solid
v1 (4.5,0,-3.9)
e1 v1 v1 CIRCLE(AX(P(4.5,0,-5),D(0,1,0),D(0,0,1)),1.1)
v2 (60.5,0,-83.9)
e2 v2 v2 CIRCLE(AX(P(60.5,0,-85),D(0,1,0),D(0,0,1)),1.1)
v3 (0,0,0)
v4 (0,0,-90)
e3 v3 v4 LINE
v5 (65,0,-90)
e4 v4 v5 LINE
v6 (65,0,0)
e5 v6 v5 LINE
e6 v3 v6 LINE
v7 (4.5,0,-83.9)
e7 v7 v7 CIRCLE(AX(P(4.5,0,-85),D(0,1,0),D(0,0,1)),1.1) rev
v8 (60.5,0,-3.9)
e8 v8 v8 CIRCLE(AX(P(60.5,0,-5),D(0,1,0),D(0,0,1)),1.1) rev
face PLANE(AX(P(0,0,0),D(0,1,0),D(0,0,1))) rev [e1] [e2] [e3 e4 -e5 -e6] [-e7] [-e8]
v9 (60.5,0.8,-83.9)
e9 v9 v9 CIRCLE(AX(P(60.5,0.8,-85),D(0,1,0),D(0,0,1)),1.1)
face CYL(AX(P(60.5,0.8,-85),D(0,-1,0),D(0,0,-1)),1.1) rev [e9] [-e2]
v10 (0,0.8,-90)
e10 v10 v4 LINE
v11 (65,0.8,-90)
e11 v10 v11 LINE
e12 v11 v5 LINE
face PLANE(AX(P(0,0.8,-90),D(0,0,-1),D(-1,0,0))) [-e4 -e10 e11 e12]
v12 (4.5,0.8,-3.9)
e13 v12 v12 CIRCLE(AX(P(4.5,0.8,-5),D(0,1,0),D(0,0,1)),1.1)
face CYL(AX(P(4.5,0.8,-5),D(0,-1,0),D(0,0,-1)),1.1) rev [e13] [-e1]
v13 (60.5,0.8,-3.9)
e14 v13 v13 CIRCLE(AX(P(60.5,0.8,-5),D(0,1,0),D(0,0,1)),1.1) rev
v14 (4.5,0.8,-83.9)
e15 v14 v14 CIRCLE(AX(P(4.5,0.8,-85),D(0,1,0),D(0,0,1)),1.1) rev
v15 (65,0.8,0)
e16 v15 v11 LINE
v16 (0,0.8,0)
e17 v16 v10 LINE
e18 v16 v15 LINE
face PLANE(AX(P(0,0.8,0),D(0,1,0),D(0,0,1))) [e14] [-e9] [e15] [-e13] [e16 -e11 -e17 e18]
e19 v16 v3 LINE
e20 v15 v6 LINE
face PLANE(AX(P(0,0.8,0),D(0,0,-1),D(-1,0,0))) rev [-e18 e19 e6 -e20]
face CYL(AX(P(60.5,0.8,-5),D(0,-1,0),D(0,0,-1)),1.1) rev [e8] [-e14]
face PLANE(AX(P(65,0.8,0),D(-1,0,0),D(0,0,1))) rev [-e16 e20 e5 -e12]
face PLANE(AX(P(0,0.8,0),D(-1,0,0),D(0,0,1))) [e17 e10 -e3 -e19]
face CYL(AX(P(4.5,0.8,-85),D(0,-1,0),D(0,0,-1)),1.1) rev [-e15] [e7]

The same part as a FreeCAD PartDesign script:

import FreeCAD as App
import Part
import Sketcher
Q = App.Units.Quantity


def add_polygon(sketch, points):
    """Adds a closed chain of lines whose ends are joined by coincident constraints."""
    first, n = sketch.GeometryCount, len(points)
    for a, b in zip(points, points[1:] + points[:1]):
        sketch.addGeometry(Part.LineSegment(App.Vector(*a, 0), App.Vector(*b, 0)), False)
    for i in range(n):
        sketch.addConstraint(Sketcher.Constraint("Coincident", first + i, 2, first + (i + 1) % n, 1))

doc = App.newDocument("Part")
body = doc.addObject("PartDesign::Body", "Body")

sketch1 = body.newObject("Sketcher::SketchObject", "Sketch")
sketch1.AttachmentSupport = (doc.getObject("XZ_Plane"), [""])
sketch1.MapMode = "FlatFace"
add_polygon(sketch1, [(0, -90), (0, 0), (65, 0), (65, -90)])
sketch1.addGeometry(Part.Circle(App.Vector(4.5, -5, 0), App.Vector(0, 0, 1), 1.1), False)
sketch1.addGeometry(Part.Circle(App.Vector(60.5, -5, 0), App.Vector(0, 0, 1), 1.1), False)
sketch1.addGeometry(Part.Circle(App.Vector(4.5, -85, 0), App.Vector(0, 0, 1), 1.1), False)
sketch1.addGeometry(Part.Circle(App.Vector(60.5, -85, 0), App.Vector(0, 0, 1), 1.1), False)
sketch1.addConstraint(Sketcher.Constraint("Vertical", 0))
sketch1.addConstraint(Sketcher.Constraint("Horizontal", 1))
sketch1.addConstraint(Sketcher.Constraint("Vertical", 2))
sketch1.addConstraint(Sketcher.Constraint("Horizontal", 3))
sketch1.addConstraint(Sketcher.Constraint("Coincident", 0, 2, -1, 1))
sketch1.addConstraint(Sketcher.Constraint("Equal", 4, 5))
sketch1.addConstraint(Sketcher.Constraint("Equal", 5, 6))
sketch1.addConstraint(Sketcher.Constraint("Equal", 6, 7))
sketch1.addConstraint(Sketcher.Constraint("Horizontal", 4, 3, 5, 3))
sketch1.addConstraint(Sketcher.Constraint("Horizontal", 6, 3, 7, 3))
sketch1.addConstraint(Sketcher.Constraint("Vertical", 4, 3, 6, 3))
sketch1.addConstraint(Sketcher.Constraint("Vertical", 5, 3, 7, 3))
sketch1.addConstraint(Sketcher.Constraint("Diameter", 4, Q("2.2 mm")))
sketch1.addConstraint(Sketcher.Constraint("DistanceX", 1, 1, 1, 2, Q("65 mm")))
sketch1.addConstraint(Sketcher.Constraint("DistanceY", 0, 1, 0, 2, Q("90 mm")))
sketch1.addConstraint(Sketcher.Constraint("DistanceY", 4, 3, -1, 1, Q("5 mm")))
sketch1.addConstraint(Sketcher.Constraint("DistanceY", 6, 3, -1, 1, Q("85 mm")))
sketch1.addConstraint(Sketcher.Constraint("DistanceX", 4, 3, 5, 3, Q("56 mm")))
sketch1.addConstraint(Sketcher.Constraint("DistanceX", -1, 1, 4, 3, Q("4.5 mm")))
pad1 = body.newObject("PartDesign::Pad", "Pad")
pad1.Profile = sketch1
pad1.Length = 0.8
pad1.Reversed = True

doc.recompute()
